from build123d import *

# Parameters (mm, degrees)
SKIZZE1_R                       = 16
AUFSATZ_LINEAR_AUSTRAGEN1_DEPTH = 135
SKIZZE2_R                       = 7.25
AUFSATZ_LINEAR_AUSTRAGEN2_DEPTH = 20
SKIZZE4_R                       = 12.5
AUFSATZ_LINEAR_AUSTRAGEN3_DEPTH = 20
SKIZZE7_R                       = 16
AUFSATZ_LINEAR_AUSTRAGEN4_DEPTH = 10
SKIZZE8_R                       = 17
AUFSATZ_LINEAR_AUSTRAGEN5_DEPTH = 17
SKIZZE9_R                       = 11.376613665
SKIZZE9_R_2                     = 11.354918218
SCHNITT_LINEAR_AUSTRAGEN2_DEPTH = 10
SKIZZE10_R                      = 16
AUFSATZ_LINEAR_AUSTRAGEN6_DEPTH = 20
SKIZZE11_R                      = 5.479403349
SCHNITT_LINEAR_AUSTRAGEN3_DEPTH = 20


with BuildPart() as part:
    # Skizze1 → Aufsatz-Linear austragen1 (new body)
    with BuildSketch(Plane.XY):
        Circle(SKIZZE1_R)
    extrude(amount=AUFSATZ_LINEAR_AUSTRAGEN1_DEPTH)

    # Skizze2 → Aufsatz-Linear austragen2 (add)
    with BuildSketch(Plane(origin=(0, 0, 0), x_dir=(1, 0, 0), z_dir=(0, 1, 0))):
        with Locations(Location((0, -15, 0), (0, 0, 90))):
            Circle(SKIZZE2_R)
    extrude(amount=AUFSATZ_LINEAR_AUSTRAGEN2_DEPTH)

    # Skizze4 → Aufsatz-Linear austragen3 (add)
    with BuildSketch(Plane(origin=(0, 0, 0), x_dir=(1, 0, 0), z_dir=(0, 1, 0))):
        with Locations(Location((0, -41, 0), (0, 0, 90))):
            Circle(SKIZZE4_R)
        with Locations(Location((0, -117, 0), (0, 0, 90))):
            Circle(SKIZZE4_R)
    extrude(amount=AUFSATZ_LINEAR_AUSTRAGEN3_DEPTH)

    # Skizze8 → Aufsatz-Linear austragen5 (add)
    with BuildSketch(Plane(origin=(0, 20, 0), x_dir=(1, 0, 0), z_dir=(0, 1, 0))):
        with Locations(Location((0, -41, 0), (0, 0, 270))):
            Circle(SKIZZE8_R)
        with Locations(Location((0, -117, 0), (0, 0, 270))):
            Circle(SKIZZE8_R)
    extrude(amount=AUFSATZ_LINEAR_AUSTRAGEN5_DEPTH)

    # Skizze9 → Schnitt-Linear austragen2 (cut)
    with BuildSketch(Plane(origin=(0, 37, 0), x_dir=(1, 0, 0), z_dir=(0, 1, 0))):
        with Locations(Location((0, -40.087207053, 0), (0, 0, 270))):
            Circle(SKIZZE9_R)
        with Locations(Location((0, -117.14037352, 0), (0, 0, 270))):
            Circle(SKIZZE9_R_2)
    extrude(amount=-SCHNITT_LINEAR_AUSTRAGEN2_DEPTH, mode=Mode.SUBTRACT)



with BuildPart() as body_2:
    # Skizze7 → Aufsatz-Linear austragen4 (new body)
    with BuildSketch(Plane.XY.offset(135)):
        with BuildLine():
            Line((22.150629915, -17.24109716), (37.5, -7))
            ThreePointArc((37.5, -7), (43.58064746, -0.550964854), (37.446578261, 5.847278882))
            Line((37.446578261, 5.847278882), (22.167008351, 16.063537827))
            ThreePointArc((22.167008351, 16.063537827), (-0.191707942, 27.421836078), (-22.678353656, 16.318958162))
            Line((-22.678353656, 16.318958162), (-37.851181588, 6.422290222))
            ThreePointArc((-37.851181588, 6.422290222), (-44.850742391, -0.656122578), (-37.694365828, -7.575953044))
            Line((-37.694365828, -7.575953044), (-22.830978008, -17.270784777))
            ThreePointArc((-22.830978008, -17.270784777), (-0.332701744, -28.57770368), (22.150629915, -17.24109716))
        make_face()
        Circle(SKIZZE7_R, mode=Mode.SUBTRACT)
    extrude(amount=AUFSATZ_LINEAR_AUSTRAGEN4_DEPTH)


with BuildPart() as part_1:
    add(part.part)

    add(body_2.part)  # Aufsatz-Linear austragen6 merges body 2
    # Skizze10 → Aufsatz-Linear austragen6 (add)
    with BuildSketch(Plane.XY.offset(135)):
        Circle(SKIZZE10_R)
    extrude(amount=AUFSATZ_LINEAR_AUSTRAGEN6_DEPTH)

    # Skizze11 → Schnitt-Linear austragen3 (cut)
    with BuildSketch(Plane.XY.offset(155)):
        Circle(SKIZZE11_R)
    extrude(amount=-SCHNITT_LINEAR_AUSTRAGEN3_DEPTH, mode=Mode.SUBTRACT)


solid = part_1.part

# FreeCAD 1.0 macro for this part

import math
import FreeCAD as App
import Part
import Sketcher
from FreeCAD import Vector
Q = App.Units.Quantity

doc = App.newDocument("Part")
params = doc.addObject("Spreadsheet::Sheet", "Params")
for row, (alias, value) in enumerate([
    ("sketch1_diameter", "32 mm"),
    ("pad1_length", "135 mm"),
    ("sketch2_diameter", "14.5 mm"),
    ("pad2_length", "20 mm"),
    ("sketch3_diameter", "25 mm"),
    ("pad3_length", "20 mm"),
    ("sketch4_diameter", "34 mm"),
    ("pad4_length", "17 mm"),
    ("pocket1_length", "10 mm"),
    ("sketch6_diameter", "32 mm"),
    ("sketch6_radius", "28 mm"),
    ("sketch6_radius2", "7 mm"),
    ("pad5_length", "10 mm"),
    ("sketch7_diameter", "32 mm"),
    ("pad6_length", "20 mm"),
    ("pocket2_length", "20 mm"),
], start=1):
    params.set(f"A{row}", alias)
    params.set(f"B{row}", "=" + value)
    params.setAlias(f"B{row}", alias)

body = doc.addObject("PartDesign::Body", "Body")

# Sketch on XY plane
sketch1 = doc.addObject("Sketcher::SketchObject", "Sketch")
body.addObject(sketch1)
sketch1.AttachmentSupport = (doc.XY_Plane, [""])
sketch1.MapMode = "FlatFace"
sketch1.addGeometry(Part.Circle(Vector(0, 0, 0), Vector(0, 0, 1), 16), False)
sketch1.addConstraint([
    Sketcher.Constraint("Coincident", 0, 3, -1, 1),
    Sketcher.Constraint("Diameter", 0, Q("32 mm")),
])
sketch1.setExpression("Constraints[1]", "Params.sketch1_diameter")
pad1 = doc.addObject("PartDesign::Pad", "Pad")
body.addObject(pad1)
pad1.Profile = sketch1
pad1.setExpression("Length", "Params.pad1_length")

# Sketch on XZ plane
sketch2 = doc.addObject("Sketcher::SketchObject", "Sketch001")
body.addObject(sketch2)
sketch2.AttachmentSupport = (doc.XZ_Plane, [""])
sketch2.MapMode = "FlatFace"
sketch2.addGeometry(Part.Circle(Vector(0, 15, 0), Vector(0, 0, 1), 7.25), False)
sketch2.addConstraint([
    Sketcher.Constraint("PointOnObject", 0, 3, -2),
    Sketcher.Constraint("Diameter", 0, Q("14.5 mm")),
    Sketcher.Constraint("DistanceY", -1, 1, 0, 3, Q("15 mm")),
])
sketch2.setExpression("Constraints[1]", "Params.sketch2_diameter")
pad2 = doc.addObject("PartDesign::Pad", "Pad001")
body.addObject(pad2)
pad2.Profile = sketch2
pad2.setExpression("Length", "Params.pad2_length")
pad2.Reversed = True

# Sketch on XZ plane
sketch3 = doc.addObject("Sketcher::SketchObject", "Sketch002")
body.addObject(sketch3)
sketch3.AttachmentSupport = (doc.XZ_Plane, [""])
sketch3.MapMode = "FlatFace"
sketch3.addGeometry([
    Part.Circle(Vector(0, 41, 0), Vector(0, 0, 1), 12.5),
    Part.Circle(Vector(0, 117, 0), Vector(0, 0, 1), 12.5),
], False)
sketch3.addConstraint([
    Sketcher.Constraint("Equal", 0, 1),
    Sketcher.Constraint("PointOnObject", 0, 3, -2),
    Sketcher.Constraint("PointOnObject", 1, 3, -2),
    Sketcher.Constraint("Diameter", 0, Q("25 mm")),
    Sketcher.Constraint("DistanceY", -1, 1, 0, 3, Q("41 mm")),
    Sketcher.Constraint("DistanceY", -1, 1, 1, 3, Q("117 mm")),
])
sketch3.setExpression("Constraints[3]", "Params.sketch3_diameter")
pad3 = doc.addObject("PartDesign::Pad", "Pad002")
body.addObject(pad3)
pad3.Profile = sketch3
pad3.setExpression("Length", "Params.pad3_length")
pad3.Reversed = True

# Sketch on XZ plane
sketch4 = doc.addObject("Sketcher::SketchObject", "Sketch003")
body.addObject(sketch4)
sketch4.AttachmentSupport = (doc.XZ_Plane, [""])
sketch4.MapMode = "FlatFace"
sketch4.AttachmentOffset = App.Placement(Vector(0, 0, -20), App.Rotation())
sketch4.addGeometry([
    Part.Circle(Vector(0, 41, 0), Vector(0, 0, 1), 17),
    Part.Circle(Vector(0, 117, 0), Vector(0, 0, 1), 17),
], False)
sketch4.addConstraint([
    Sketcher.Constraint("Equal", 0, 1),
    Sketcher.Constraint("PointOnObject", 0, 3, -2),
    Sketcher.Constraint("PointOnObject", 1, 3, -2),
    Sketcher.Constraint("Diameter", 0, Q("34 mm")),
    Sketcher.Constraint("DistanceY", -1, 1, 0, 3, Q("41 mm")),
    Sketcher.Constraint("DistanceY", -1, 1, 1, 3, Q("117 mm")),
])
sketch4.setExpression("Constraints[3]", "Params.sketch4_diameter")
pad4 = doc.addObject("PartDesign::Pad", "Pad003")
body.addObject(pad4)
pad4.Profile = sketch4
pad4.setExpression("Length", "Params.pad4_length")
pad4.Reversed = True

# Sketch on XZ plane
sketch5 = doc.addObject("Sketcher::SketchObject", "Sketch004")
body.addObject(sketch5)
sketch5.AttachmentSupport = (doc.XZ_Plane, [""])
sketch5.MapMode = "FlatFace"
sketch5.AttachmentOffset = App.Placement(Vector(0, 0, -37), App.Rotation())
sketch5.addGeometry([
    Part.Circle(Vector(0, 40.087207, 0), Vector(0, 0, 1), 11.376614),
    Part.Circle(Vector(0, 117.140374, 0), Vector(0, 0, 1), 11.354918),
], False)
sketch5.addConstraint([
    Sketcher.Constraint("PointOnObject", 0, 3, -2),
    Sketcher.Constraint("PointOnObject", 1, 3, -2),
    Sketcher.Constraint("Diameter", 0, Q("22.753227 mm")),
    Sketcher.Constraint("Diameter", 1, Q("22.709836 mm")),
    Sketcher.Constraint("DistanceY", -1, 1, 0, 3, Q("40.087207 mm")),
    Sketcher.Constraint("DistanceY", -1, 1, 1, 3, Q("117.140374 mm")),
])
pocket1 = doc.addObject("PartDesign::Pocket", "Pocket")
body.addObject(pocket1)
pocket1.Profile = sketch5
pocket1.setExpression("Length", "Params.pocket1_length")
pocket1.Reversed = True
body2 = doc.addObject("PartDesign::Body", "Body001")

# Sketch on XY plane
sketch6 = doc.addObject("Sketcher::SketchObject", "Sketch005")
body2.addObject(sketch6)
sketch6.AttachmentSupport = (doc.getObject("XY_Plane001"), [""])
sketch6.MapMode = "FlatFace"
sketch6.AttachmentOffset = App.Placement(Vector(0, 0, 135), App.Rotation())
sketch6.addGeometry([
    Part.LineSegment(Vector(22.15063, -17.241097, 0), Vector(37.5, -7, 0)),  # 0
    Part.ArcOfCircle(Part.Circle(Vector(37.148818, -0.57771, 0), Vector(0, 0, 1), 6.431885), math.radians(-86.870088), math.radians(87.346581)),  # 1
    Part.LineSegment(Vector(37.446578, 5.847279, 0), Vector(22.167008, 16.063538, 0)),  # 2
    Part.ArcOfCircle(Part.Circle(Vector(-0.351182, -0.57771, 0), Vector(0, 0, 1), 28), math.radians(36.464903), math.radians(142.882438)),  # 3
    Part.LineSegment(Vector(-22.678354, 16.318958, 0), Vector(-37.851182, 6.42229, 0)),  # 4
    Part.ArcOfCircle(Part.Circle(Vector(-37.851182, -0.57771, 0), Vector(0, 0, 1), 7), math.radians(90), math.radians(271.283662)),  # 5
    Part.LineSegment(Vector(-37.694366, -7.575953, 0), Vector(-22.830978, -17.270785, 0)),  # 6
    Part.ArcOfCircle(Part.Circle(Vector(-0.351182, -0.57771, 0), Vector(0, 0, 1), 28), math.radians(-143.403113), math.radians(-36.521257)),  # 7
    Part.Circle(Vector(0, 0, 0), Vector(0, 0, 1), 16),  # 8
], False)
sketch6.addConstraint([
    Sketcher.Constraint("Coincident", 0, 2, 1, 1),
    Sketcher.Constraint("Coincident", 1, 2, 2, 1),
    Sketcher.Constraint("Coincident", 2, 2, 3, 1),
    Sketcher.Constraint("Coincident", 3, 2, 4, 1),
    Sketcher.Constraint("Coincident", 4, 2, 5, 1),
    Sketcher.Constraint("Coincident", 5, 2, 6, 1),
    Sketcher.Constraint("Coincident", 6, 2, 7, 1),
    Sketcher.Constraint("Coincident", 7, 2, 0, 1),
    Sketcher.Constraint("Coincident", 8, 3, -1, 1),
    Sketcher.Constraint("Coincident", 7, 3, 3, 3),
    Sketcher.Constraint("Equal", 3, 7),
    Sketcher.Constraint("Horizontal", 1, 3, 3, 3),
    Sketcher.Constraint("Horizontal", 3, 3, 5, 3),
    Sketcher.Constraint("Vertical", 5, 3, 4, 2),
    Sketcher.Constraint("Diameter", 8, Q("32 mm")),
    Sketcher.Constraint("Radius", 3, Q("28 mm")),
    Sketcher.Constraint("Radius", 5, Q("7 mm")),
    Sketcher.Constraint("DistanceY", 0, 2, -1, 1, Q("7 mm")),
    Sketcher.Constraint("DistanceX", 5, 3, 1, 3, Q("75 mm")),
    Sketcher.Constraint("DistanceX", -1, 1, 0, 2, Q("37.5 mm")),
    Sketcher.Constraint("DistanceX", 3, 3, 1, 3, Q("37.5 mm")),
    Sketcher.Constraint("Radius", 1, Q("6.431885 mm")),
    Sketcher.Constraint("Distance", 2, Q("18.380348 mm")),
    Sketcher.Constraint("DistanceX", -1, 1, 1, 3, Q("37.148818 mm")),
    Sketcher.Constraint("DistanceX", -1, 1, 1, 2, Q("37.446578 mm")),
    Sketcher.Constraint("DistanceY", -1, 1, 3, 2, Q("16.318958 mm")),
    Sketcher.Constraint("DistanceX", 6, 2, -1, 1, Q("22.830978 mm")),
    Sketcher.Constraint("DistanceX", -1, 1, 7, 2, Q("22.15063 mm")),
    Sketcher.Constraint("DistanceY", 6, 2, 5, 2, Q("9.694832 mm")),
])
sketch6.setExpression("Constraints[14]", "Params.sketch6_diameter")
sketch6.setExpression("Constraints[15]", "Params.sketch6_radius")
sketch6.setExpression("Constraints[16]", "Params.sketch6_radius2")
pad5 = doc.addObject("PartDesign::Pad", "Pad004")
body2.addObject(pad5)
pad5.Profile = sketch6
pad5.setExpression("Length", "Params.pad5_length")
body.AllowCompound = True
doc.recompute()

boolean = doc.addObject("PartDesign::Boolean", "Boolean")
body.addObject(boolean)
boolean.Type = "Fuse"
boolean.addObjects([body2])

# Sketch on XY plane
sketch7 = doc.addObject("Sketcher::SketchObject", "Sketch006")
body.addObject(sketch7)
sketch7.AttachmentSupport = (doc.XY_Plane, [""])
sketch7.MapMode = "FlatFace"
sketch7.AttachmentOffset = App.Placement(Vector(0, 0, 135), App.Rotation())
sketch7.addGeometry(Part.Circle(Vector(0, 0, 0), Vector(0, 0, 1), 16), False)
sketch7.addConstraint([
    Sketcher.Constraint("Coincident", 0, 3, -1, 1),
    Sketcher.Constraint("Diameter", 0, Q("32 mm")),
])
sketch7.setExpression("Constraints[1]", "Params.sketch7_diameter")
pad6 = doc.addObject("PartDesign::Pad", "Pad005")
body.addObject(pad6)
pad6.Profile = sketch7
pad6.setExpression("Length", "Params.pad6_length")

# Sketch on XY plane
sketch8 = doc.addObject("Sketcher::SketchObject", "Sketch007")
body.addObject(sketch8)
sketch8.AttachmentSupport = (doc.XY_Plane, [""])
sketch8.MapMode = "FlatFace"
sketch8.AttachmentOffset = App.Placement(Vector(0, 0, 155), App.Rotation())
sketch8.addGeometry(Part.Circle(Vector(0, 0, 0), Vector(0, 0, 1), 5.479403), False)
sketch8.addConstraint([
    Sketcher.Constraint("Coincident", 0, 3, -1, 1),
    Sketcher.Constraint("Diameter", 0, Q("10.958807 mm")),
])
pocket2 = doc.addObject("PartDesign::Pocket", "Pocket001")
body.addObject(pocket2)
pocket2.Profile = sketch8
pocket2.setExpression("Length", "Params.pocket2_length")

doc.recompute()
